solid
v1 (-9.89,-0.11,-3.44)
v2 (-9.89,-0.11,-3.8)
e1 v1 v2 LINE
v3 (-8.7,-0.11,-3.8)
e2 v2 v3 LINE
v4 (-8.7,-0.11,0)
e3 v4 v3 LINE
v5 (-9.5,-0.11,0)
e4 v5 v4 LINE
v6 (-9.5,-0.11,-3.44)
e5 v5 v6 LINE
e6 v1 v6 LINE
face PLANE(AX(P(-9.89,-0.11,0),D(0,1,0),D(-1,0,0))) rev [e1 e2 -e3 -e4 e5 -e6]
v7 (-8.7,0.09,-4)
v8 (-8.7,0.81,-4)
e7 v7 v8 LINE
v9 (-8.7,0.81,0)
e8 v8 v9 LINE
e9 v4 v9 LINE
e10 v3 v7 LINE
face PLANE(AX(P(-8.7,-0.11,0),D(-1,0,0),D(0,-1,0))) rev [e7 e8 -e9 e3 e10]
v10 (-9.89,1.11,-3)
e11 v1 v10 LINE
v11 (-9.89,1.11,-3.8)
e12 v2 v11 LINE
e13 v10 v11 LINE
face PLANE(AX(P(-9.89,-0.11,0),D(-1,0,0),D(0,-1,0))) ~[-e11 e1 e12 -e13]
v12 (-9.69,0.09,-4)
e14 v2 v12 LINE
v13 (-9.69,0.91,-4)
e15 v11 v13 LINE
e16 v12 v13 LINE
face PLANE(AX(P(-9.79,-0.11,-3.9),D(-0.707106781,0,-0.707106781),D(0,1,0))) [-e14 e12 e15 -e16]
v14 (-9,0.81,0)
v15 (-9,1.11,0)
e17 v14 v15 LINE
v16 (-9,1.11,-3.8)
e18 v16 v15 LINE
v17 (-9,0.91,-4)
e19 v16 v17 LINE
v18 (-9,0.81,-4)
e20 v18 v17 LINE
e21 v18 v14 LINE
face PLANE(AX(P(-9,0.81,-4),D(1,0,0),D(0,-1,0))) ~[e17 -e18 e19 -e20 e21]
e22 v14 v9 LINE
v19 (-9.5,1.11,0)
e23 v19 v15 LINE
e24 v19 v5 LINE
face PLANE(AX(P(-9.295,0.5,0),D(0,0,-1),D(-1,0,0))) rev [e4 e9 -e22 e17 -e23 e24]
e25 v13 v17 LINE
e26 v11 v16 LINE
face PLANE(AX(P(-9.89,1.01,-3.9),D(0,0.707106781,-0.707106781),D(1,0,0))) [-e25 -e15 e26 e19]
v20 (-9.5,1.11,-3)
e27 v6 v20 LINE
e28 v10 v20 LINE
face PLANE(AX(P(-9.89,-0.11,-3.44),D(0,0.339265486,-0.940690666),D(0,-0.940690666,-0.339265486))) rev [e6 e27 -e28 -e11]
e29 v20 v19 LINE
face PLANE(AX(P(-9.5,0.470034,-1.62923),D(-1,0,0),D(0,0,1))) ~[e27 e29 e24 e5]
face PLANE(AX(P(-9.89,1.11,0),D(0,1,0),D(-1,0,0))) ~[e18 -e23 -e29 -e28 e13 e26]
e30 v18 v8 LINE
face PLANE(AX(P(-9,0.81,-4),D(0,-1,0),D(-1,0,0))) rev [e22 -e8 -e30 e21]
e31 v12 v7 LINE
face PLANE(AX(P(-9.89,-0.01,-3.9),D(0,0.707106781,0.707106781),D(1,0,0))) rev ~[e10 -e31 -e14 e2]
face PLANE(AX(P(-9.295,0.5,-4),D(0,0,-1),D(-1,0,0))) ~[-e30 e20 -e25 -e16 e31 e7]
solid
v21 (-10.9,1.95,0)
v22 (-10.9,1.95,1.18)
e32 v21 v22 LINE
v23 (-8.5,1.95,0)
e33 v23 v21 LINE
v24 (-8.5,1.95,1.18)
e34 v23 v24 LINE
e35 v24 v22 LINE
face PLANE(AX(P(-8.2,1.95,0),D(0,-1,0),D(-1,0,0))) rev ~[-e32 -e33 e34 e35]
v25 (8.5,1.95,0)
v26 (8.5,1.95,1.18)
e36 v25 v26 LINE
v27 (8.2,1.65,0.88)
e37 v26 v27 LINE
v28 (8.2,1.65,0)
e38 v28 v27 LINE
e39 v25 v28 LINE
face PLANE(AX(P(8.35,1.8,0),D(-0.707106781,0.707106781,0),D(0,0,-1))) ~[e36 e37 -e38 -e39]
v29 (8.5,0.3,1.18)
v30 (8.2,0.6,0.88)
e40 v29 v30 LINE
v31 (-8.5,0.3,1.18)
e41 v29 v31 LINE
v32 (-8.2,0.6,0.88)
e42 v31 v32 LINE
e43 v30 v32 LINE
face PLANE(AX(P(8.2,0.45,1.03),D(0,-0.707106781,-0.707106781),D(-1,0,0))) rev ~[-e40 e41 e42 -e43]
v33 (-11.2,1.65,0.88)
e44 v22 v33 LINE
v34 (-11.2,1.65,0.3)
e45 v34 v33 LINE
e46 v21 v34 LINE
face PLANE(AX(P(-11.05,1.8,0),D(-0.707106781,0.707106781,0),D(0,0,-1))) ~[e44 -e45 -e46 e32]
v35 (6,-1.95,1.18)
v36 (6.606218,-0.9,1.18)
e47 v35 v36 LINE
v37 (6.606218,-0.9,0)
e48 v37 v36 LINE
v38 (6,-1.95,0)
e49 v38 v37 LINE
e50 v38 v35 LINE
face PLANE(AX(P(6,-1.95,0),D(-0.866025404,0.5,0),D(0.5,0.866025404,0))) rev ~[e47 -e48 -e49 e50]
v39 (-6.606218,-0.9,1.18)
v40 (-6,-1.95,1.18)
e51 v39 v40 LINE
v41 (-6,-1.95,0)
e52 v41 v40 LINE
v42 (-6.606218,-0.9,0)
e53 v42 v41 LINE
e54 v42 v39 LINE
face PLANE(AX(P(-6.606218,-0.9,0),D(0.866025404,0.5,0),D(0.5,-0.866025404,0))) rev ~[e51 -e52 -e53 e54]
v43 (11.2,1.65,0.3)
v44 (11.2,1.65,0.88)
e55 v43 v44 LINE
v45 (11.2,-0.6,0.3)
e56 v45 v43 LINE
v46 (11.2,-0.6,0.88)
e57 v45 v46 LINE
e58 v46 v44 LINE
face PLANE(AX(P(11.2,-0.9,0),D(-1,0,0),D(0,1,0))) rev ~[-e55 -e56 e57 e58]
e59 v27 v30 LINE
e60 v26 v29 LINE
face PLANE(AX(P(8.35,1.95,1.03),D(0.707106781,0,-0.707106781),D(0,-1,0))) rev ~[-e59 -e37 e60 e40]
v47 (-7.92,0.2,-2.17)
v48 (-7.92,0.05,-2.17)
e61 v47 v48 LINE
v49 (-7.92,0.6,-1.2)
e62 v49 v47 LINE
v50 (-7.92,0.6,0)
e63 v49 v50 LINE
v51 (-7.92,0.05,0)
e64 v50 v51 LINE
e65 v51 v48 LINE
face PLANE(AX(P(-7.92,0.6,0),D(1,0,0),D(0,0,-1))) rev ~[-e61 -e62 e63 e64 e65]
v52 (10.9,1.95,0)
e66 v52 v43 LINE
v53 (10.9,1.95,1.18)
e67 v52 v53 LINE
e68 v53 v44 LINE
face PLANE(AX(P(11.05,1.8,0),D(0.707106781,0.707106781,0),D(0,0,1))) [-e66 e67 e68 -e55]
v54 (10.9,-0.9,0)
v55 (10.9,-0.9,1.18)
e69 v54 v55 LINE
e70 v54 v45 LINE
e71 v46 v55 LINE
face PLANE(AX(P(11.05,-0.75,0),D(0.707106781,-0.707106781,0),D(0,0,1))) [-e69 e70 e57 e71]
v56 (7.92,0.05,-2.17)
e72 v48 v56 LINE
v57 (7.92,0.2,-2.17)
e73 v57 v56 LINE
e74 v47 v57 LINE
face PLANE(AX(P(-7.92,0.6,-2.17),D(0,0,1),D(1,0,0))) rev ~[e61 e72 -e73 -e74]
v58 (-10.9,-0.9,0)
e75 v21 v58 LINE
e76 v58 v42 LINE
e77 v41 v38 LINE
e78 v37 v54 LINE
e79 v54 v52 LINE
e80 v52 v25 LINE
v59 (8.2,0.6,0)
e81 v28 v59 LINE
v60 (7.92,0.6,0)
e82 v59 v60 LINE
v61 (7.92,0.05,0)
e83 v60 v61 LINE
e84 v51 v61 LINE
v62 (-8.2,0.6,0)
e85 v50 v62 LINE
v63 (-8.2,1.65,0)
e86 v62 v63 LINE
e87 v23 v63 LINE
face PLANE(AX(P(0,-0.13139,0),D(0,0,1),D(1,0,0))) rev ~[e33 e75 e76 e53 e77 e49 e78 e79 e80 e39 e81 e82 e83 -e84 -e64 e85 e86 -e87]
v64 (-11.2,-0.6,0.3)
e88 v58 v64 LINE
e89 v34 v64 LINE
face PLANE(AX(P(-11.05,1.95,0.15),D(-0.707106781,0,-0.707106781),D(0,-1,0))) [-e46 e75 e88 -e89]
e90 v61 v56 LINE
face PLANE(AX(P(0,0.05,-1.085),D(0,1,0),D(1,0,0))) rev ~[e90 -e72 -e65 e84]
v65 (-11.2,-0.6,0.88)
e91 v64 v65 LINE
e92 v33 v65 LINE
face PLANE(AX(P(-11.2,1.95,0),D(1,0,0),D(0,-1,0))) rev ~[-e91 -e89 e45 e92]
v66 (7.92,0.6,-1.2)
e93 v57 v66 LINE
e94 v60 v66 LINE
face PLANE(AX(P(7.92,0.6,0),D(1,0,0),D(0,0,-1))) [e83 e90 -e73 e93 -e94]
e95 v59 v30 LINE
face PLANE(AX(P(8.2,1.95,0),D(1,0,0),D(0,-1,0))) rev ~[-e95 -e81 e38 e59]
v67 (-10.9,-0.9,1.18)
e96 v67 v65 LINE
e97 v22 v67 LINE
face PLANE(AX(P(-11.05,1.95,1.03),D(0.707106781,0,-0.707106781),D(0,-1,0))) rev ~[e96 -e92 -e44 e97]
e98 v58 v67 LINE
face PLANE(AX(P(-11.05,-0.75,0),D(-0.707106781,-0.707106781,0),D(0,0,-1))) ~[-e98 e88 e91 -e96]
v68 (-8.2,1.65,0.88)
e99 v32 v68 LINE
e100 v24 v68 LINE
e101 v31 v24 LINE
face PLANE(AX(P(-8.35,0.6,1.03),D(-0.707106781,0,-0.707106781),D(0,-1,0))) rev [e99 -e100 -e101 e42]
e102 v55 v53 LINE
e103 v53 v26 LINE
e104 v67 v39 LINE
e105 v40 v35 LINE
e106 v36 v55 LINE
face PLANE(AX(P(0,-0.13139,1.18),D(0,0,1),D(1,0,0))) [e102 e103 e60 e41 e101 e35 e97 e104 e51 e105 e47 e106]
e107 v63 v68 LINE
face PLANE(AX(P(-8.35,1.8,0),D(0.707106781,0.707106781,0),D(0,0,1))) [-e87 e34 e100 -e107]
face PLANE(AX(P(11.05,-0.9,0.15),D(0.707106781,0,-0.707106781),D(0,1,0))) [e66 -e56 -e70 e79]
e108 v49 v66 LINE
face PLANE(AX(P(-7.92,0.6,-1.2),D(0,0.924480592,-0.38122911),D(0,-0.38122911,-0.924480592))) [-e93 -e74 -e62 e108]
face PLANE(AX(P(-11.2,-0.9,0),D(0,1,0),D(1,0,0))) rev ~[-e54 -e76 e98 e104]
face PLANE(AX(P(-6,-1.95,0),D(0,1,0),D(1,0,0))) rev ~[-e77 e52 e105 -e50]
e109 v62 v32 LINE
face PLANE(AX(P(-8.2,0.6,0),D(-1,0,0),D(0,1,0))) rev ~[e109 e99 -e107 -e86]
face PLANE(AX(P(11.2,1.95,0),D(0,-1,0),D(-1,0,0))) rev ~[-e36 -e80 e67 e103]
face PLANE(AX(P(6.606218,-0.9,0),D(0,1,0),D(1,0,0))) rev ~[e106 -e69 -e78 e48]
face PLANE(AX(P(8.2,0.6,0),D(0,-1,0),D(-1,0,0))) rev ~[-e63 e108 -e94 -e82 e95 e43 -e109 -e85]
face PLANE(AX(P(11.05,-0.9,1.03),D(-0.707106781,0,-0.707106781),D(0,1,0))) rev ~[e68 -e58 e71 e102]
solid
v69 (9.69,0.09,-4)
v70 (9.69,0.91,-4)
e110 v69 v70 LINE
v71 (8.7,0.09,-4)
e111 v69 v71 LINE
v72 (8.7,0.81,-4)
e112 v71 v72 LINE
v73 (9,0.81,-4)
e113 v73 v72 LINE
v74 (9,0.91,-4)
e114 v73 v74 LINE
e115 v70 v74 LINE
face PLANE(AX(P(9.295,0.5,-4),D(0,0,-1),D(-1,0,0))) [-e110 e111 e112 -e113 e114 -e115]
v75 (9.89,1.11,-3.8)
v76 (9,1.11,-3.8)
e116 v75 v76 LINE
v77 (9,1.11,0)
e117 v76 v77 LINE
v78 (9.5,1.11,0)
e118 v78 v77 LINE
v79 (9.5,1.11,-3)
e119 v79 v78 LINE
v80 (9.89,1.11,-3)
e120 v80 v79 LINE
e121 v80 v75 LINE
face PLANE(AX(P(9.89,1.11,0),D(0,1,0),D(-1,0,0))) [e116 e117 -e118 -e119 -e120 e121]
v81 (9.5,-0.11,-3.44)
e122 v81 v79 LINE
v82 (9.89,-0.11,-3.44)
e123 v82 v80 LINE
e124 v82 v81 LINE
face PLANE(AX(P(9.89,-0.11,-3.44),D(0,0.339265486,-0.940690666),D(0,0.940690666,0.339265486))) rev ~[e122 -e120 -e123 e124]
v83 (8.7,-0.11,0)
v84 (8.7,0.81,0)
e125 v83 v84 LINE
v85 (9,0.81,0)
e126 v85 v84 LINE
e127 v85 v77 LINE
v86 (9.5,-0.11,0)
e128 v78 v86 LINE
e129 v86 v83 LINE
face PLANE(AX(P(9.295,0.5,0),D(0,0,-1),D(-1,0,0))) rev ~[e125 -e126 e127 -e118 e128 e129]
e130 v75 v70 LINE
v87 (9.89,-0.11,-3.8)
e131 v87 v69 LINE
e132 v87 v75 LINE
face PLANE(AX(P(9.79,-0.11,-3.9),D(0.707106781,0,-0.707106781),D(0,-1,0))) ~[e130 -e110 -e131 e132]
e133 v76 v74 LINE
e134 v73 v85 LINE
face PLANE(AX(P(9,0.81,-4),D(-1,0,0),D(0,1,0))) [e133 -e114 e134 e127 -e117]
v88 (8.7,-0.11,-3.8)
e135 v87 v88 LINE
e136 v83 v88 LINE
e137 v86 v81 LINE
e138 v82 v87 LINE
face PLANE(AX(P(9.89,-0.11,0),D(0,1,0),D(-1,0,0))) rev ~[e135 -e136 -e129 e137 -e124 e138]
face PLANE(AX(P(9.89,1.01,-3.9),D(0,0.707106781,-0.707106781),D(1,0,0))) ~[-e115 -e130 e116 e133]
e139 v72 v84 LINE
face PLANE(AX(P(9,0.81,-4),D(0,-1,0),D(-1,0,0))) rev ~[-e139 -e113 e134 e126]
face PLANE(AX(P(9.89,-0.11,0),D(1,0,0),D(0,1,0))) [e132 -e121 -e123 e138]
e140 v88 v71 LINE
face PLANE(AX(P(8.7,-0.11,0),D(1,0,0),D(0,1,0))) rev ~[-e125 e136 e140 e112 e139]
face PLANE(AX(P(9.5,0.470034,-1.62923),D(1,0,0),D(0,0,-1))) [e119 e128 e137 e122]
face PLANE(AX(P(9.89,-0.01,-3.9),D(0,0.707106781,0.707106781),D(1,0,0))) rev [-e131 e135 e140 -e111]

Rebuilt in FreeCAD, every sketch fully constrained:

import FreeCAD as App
import Part
import Sketcher
Q = App.Units.Quantity


def edges_at(feature, points):
    """Names of the edges that pass closest to the given points."""
    edges = feature.Shape.Edges
    near = lambda p: min(range(len(edges)), key=lambda i: edges[i].distToShape(Part.Vertex(*p))[0])
    return sorted({f"Edge{near(p) + 1}" for p in points})

doc = App.newDocument("Part")
params = doc.addObject("Spreadsheet::Sheet", "Params")
for row, (alias, value) in enumerate([
    ("sketch1_width", "3 mm"),
    ("sketch1_width2", "12 mm"),
    ("sketch1_width3", "16.4 mm"),
    ("sketch1_height", "1.35 mm"),
    ("sketch1_height2", "2.85 mm"),
    ("pad1_length", "1.18 mm"),
    ("sketch2_width", "15.84 mm"),
    ("sketch2_height", "2.17 mm"),
    ("pad2_length", "0.55 mm"),
    ("sketch3_width", "0.4 mm"),
    ("sketch3_height", "0.97 mm"),
    ("chamfer_size", "0.3 mm"),
    ("chamfer2_size", "0.3 mm"),
    ("sketch4_width", "1.19 mm"),
    ("sketch4_height", "1.22 mm"),
    ("pad3_length", "4 mm"),
    ("sketch5_width", "0.3 mm"),
    ("pocket2_length", "4 mm"),
    ("chamfer3_size", "0.2 mm"),
    ("sketch6_height", "3 mm"),
    ("sketch6_width", "1.22 mm"),
    ("sketch6_height2", "3.44 mm"),
    ("pocket3_length", "0.39 mm"),
], start=1):
    params.set(f"A{row}", alias)
    params.set(f"B{row}", "=" + value)
    params.setAlias(f"B{row}", alias)

body = doc.addObject("PartDesign::Body", "Body")

sketch1 = doc.addObject("Sketcher::SketchObject", "Sketch")
body.addObject(sketch1)
sketch1.AttachmentSupport = (doc.XY_Plane, [""])
sketch1.MapMode = "FlatFace"
sketch1.addGeometry([
    Part.LineSegment(App.Vector(-8.2, 0.6, 0), App.Vector(-8.2, 1.9, 0)),
    Part.LineSegment(App.Vector(-8.2, 1.9, 0), App.Vector(-11.2, 1.9, 0)),
    Part.LineSegment(App.Vector(-11.2, 1.9, 0), App.Vector(-11.2, -0.9, 0)),
    Part.LineSegment(App.Vector(-11.2, -0.9, 0), App.Vector(-6.6, -0.9, 0)),
    Part.LineSegment(App.Vector(-6.6, -0.9, 0), App.Vector(-6, -1.9, 0)),
    Part.LineSegment(App.Vector(-6, -1.9, 0), App.Vector(6, -1.9, 0)),
    Part.LineSegment(App.Vector(6, -1.9, 0), App.Vector(6.6, -0.9, 0)),
    Part.LineSegment(App.Vector(6.6, -0.9, 0), App.Vector(11.2, -0.9, 0)),
    Part.LineSegment(App.Vector(11.2, -0.9, 0), App.Vector(11.2, 1.9, 0)),
    Part.LineSegment(App.Vector(11.2, 1.9, 0), App.Vector(8.2, 1.9, 0)),
    Part.LineSegment(App.Vector(8.2, 1.9, 0), App.Vector(8.2, 0.6, 0)),
    Part.LineSegment(App.Vector(8.2, 0.6, 0), App.Vector(-8.2, 0.6, 0)),
], False)
sketch1.addConstraint([
    Sketcher.Constraint("Coincident", 0, 2, 1, 1),
    Sketcher.Constraint("Coincident", 1, 2, 2, 1),
    Sketcher.Constraint("Coincident", 2, 2, 3, 1),
    Sketcher.Constraint("Coincident", 3, 2, 4, 1),
    Sketcher.Constraint("Coincident", 4, 2, 5, 1),
    Sketcher.Constraint("Coincident", 5, 2, 6, 1),
    Sketcher.Constraint("Coincident", 6, 2, 7, 1),
    Sketcher.Constraint("Coincident", 7, 2, 8, 1),
    Sketcher.Constraint("Coincident", 8, 2, 9, 1),
    Sketcher.Constraint("Coincident", 9, 2, 10, 1),
    Sketcher.Constraint("Coincident", 10, 2, 11, 1),
    Sketcher.Constraint("Coincident", 11, 2, 0, 1),
    Sketcher.Constraint("Vertical", 0),
    Sketcher.Constraint("Horizontal", 1),
    Sketcher.Constraint("Vertical", 2),
    Sketcher.Constraint("Horizontal", 3),
    Sketcher.Constraint("Horizontal", 5),
    Sketcher.Constraint("Horizontal", 7),
    Sketcher.Constraint("Vertical", 8),
    Sketcher.Constraint("Horizontal", 9),
    Sketcher.Constraint("Vertical", 10),
    Sketcher.Constraint("Horizontal", 11),
    Sketcher.Constraint("Symmetric", 3, 2, 6, 2, -2),
    Sketcher.Constraint("Symmetric", 1, 2, 8, 2, -2),
    Sketcher.Constraint("Equal", 1, 9),
    Sketcher.Constraint("Equal", 4, 6),
    Sketcher.Constraint("DistanceX", 1, 2, 1, 1, Q("3 mm")),
    Sketcher.Constraint("DistanceX", 5, 1, 5, 2, Q("12 mm")),
    Sketcher.Constraint("Angle", 4, Q("-60 deg")),
    Sketcher.Constraint("DistanceX", 11, 2, 11, 1, Q("16.4 mm")),
    Sketcher.Constraint("DistanceY", 0, 1, 0, 2, Q("1.35 mm")),
    Sketcher.Constraint("DistanceY", 2, 2, 2, 1, Q("2.85 mm")),
    Sketcher.Constraint("DistanceY", 2, 2, -1, 1, Q("0.9 mm")),
    Sketcher.Constraint("DistanceY", 4, 2, 0, 2, Q("3.9 mm")),
])
sketch1.setExpression("Constraints[26]", "Params.sketch1_width")
sketch1.setExpression("Constraints[27]", "Params.sketch1_width2")
sketch1.setExpression("Constraints[29]", "Params.sketch1_width3")
sketch1.setExpression("Constraints[30]", "Params.sketch1_height")
sketch1.setExpression("Constraints[31]", "Params.sketch1_height2")
pad1 = doc.addObject("PartDesign::Pad", "Pad")
body.addObject(pad1)
pad1.Profile = sketch1
pad1.setExpression("Length", "Params.pad1_length")

sketch2 = doc.addObject("Sketcher::SketchObject", "Sketch001")
body.addObject(sketch2)
sketch2.AttachmentSupport = (doc.XZ_Plane, [""])
sketch2.MapMode = "FlatFace"
sketch2.AttachmentOffset = App.Placement(App.Vector(0, 0, -0.6), App.Rotation())
sketch2.addGeometry([
    Part.LineSegment(App.Vector(-7.9, -2.2, 0), App.Vector(-7.9, 0, 0)),
    Part.LineSegment(App.Vector(-7.9, 0, 0), App.Vector(7.9, 0, 0)),
    Part.LineSegment(App.Vector(7.9, 0, 0), App.Vector(7.9, -2.2, 0)),
    Part.LineSegment(App.Vector(7.9, -2.2, 0), App.Vector(-7.9, -2.2, 0)),
], False)
sketch2.addConstraint([
    Sketcher.Constraint("Coincident", 0, 2, 1, 1),
    Sketcher.Constraint("Coincident", 1, 2, 2, 1),
    Sketcher.Constraint("Coincident", 2, 2, 3, 1),
    Sketcher.Constraint("Coincident", 3, 2, 0, 1),
    Sketcher.Constraint("Vertical", 0),
    Sketcher.Constraint("Horizontal", 1),
    Sketcher.Constraint("Vertical", 2),
    Sketcher.Constraint("Horizontal", 3),
    Sketcher.Constraint("Symmetric", 0, 2, 1, 2, -1, 1),
    Sketcher.Constraint("DistanceX", 1, 1, 1, 2, Q("15.84 mm")),
    Sketcher.Constraint("DistanceY", 0, 1, 0, 2, Q("2.17 mm")),
])
sketch2.setExpression("Constraints[9]", "Params.sketch2_width")
sketch2.setExpression("Constraints[10]", "Params.sketch2_height")
pad2 = doc.addObject("PartDesign::Pad", "Pad001")
body.addObject(pad2)
pad2.Profile = sketch2
pad2.setExpression("Length", "Params.pad2_length")

sketch3 = doc.addObject("Sketcher::SketchObject", "Sketch002")
body.addObject(sketch3)
sketch3.AttachmentSupport = (doc.YZ_Plane, [""])
sketch3.MapMode = "FlatFace"
sketch3.AttachmentOffset = App.Placement(App.Vector(0, 0, -7.92), App.Rotation())
sketch3.addGeometry([
    Part.LineSegment(App.Vector(0.2, -2.17, 0), App.Vector(0.6, -1.2, 0)),
    Part.LineSegment(App.Vector(0.6, -1.2, 0), App.Vector(0.6, -2.17, 0)),
    Part.LineSegment(App.Vector(0.6, -2.17, 0), App.Vector(0.2, -2.17, 0)),
], False)
sketch3.addConstraint([
    Sketcher.Constraint("Coincident", 0, 2, 1, 1),
    Sketcher.Constraint("Coincident", 1, 2, 2, 1),
    Sketcher.Constraint("Coincident", 2, 2, 0, 1),
    Sketcher.Constraint("Vertical", 1),
    Sketcher.Constraint("Horizontal", 2),
    Sketcher.Constraint("DistanceX", 2, 2, 2, 1, Q("0.4 mm")),
    Sketcher.Constraint("DistanceY", 1, 2, 1, 1, Q("0.97 mm")),
    Sketcher.Constraint("DistanceX", -1, 1, 0, 2, Q("0.6 mm")),
    Sketcher.Constraint("DistanceY", 0, 2, -1, 1, Q("1.2 mm")),
])
sketch3.setExpression("Constraints[5]", "Params.sketch3_width")
sketch3.setExpression("Constraints[6]", "Params.sketch3_height")
pocket1 = doc.addObject("PartDesign::Pocket", "Pocket")
body.addObject(pocket1)
pocket1.Profile = sketch3
pocket1.Type = "ThroughAll"
pocket1.Midplane = True
doc.recompute()

chamfer = doc.addObject("PartDesign::Chamfer", "Chamfer")
body.addObject(chamfer)
chamfer.Base = (pocket1, edges_at(pocket1, [
    (11.2, 0.525, 0),
    (-11.2, 0.525, 1.18),
    (-11.2, 0.525, 0),
    (11.2, 1.95, 0.59),
    (11.2, -0.9, 0.59),
    (-11.2, -0.9, 0.59),
    (-11.2, 1.95, 0.59),
    (11.2, 0.525, 1.18),
]))
chamfer.setExpression("Size", "Params.chamfer_size")
doc.recompute()

chamfer2 = doc.addObject("PartDesign::Chamfer", "Chamfer001")
body.addObject(chamfer2)
chamfer2.Base = (chamfer, edges_at(chamfer, [
    (8.2, 1.95, 0.59),
    (-8.2, 1.95, 0.59),
    (8.2, 1.275, 1.18),
    (0, 0.6, 1.18),
    (-8.2, 1.275, 1.18),
]))
chamfer2.setExpression("Size", "Params.chamfer2_size")
body2 = doc.addObject("PartDesign::Body", "Body001")

sketch4 = doc.addObject("Sketcher::SketchObject", "Sketch003")
body2.addObject(sketch4)
sketch4.AttachmentSupport = (doc.getObject("XY_Plane001"), [""])
sketch4.MapMode = "FlatFace"
sketch4.addGeometry([
    Part.LineSegment(App.Vector(9.9, 1.1, 0), App.Vector(9.9, -0.1, 0)),
    Part.LineSegment(App.Vector(9.9, -0.1, 0), App.Vector(8.7, -0.1, 0)),
    Part.LineSegment(App.Vector(8.7, -0.1, 0), App.Vector(8.7, 1.1, 0)),
    Part.LineSegment(App.Vector(8.7, 1.1, 0), App.Vector(9.9, 1.1, 0)),
], False)
sketch4.addConstraint([
    Sketcher.Constraint("Coincident", 0, 2, 1, 1),
    Sketcher.Constraint("Coincident", 1, 2, 2, 1),
    Sketcher.Constraint("Coincident", 2, 2, 3, 1),
    Sketcher.Constraint("Coincident", 3, 2, 0, 1),
    Sketcher.Constraint("Vertical", 0),
    Sketcher.Constraint("Horizontal", 1),
    Sketcher.Constraint("Vertical", 2),
    Sketcher.Constraint("Horizontal", 3),
    Sketcher.Constraint("DistanceX", 1, 2, 1, 1, Q("1.19 mm")),
    Sketcher.Constraint("DistanceY", 0, 2, 0, 1, Q("1.22 mm")),
    Sketcher.Constraint("DistanceX", -1, 1, 1, 2, Q("8.7 mm")),
    Sketcher.Constraint("DistanceY", 0, 2, -1, 1, Q("0.11 mm")),
])
sketch4.setExpression("Constraints[8]", "Params.sketch4_width")
sketch4.setExpression("Constraints[9]", "Params.sketch4_height")
pad3 = doc.addObject("PartDesign::Pad", "Pad002")
body2.addObject(pad3)
pad3.Profile = sketch4
pad3.setExpression("Length", "Params.pad3_length")
pad3.Reversed = True

sketch5 = doc.addObject("Sketcher::SketchObject", "Sketch004")
body2.addObject(sketch5)
sketch5.AttachmentSupport = (doc.getObject("XY_Plane001"), [""])
sketch5.MapMode = "FlatFace"
sketch5.AttachmentOffset = App.Placement(App.Vector(0, 0, -4), App.Rotation())
sketch5.addGeometry([
    Part.LineSegment(App.Vector(9, 1.11, 0), App.Vector(9, 0.81, 0)),
    Part.LineSegment(App.Vector(9, 0.81, 0), App.Vector(8.7, 0.81, 0)),
    Part.LineSegment(App.Vector(8.7, 0.81, 0), App.Vector(8.7, 1.11, 0)),
    Part.LineSegment(App.Vector(8.7, 1.11, 0), App.Vector(9, 1.11, 0)),
], False)
sketch5.addConstraint([
    Sketcher.Constraint("Coincident", 0, 2, 1, 1),
    Sketcher.Constraint("Coincident", 1, 2, 2, 1),
    Sketcher.Constraint("Coincident", 2, 2, 3, 1),
    Sketcher.Constraint("Coincident", 3, 2, 0, 1),
    Sketcher.Constraint("Vertical", 0),
    Sketcher.Constraint("Horizontal", 1),
    Sketcher.Constraint("Vertical", 2),
    Sketcher.Constraint("Horizontal", 3),
    Sketcher.Constraint("Equal", 3, 0),
    Sketcher.Constraint("DistanceX", 1, 2, 1, 1, Q("0.3 mm")),
    Sketcher.Constraint("DistanceX", -1, 1, 0, 2, Q("9 mm")),
    Sketcher.Constraint("DistanceY", -1, 1, 0, 2, Q("0.81 mm")),
])
sketch5.setExpression("Constraints[9]", "Params.sketch5_width")
pocket2 = doc.addObject("PartDesign::Pocket", "Pocket001")
body2.addObject(pocket2)
pocket2.Profile = sketch5
pocket2.setExpression("Length", "Params.pocket2_length")
pocket2.Reversed = True
doc.recompute()

chamfer3 = doc.addObject("PartDesign::Chamfer", "Chamfer002")
body2.addObject(chamfer3)
chamfer3.Base = (pocket2, edges_at(pocket2, [(9.89, 0.5, -4), (9.295, -0.11, -4), (9.445, 1.11, -4)]))
chamfer3.setExpression("Size", "Params.chamfer3_size")

sketch6 = doc.addObject("Sketcher::SketchObject", "Sketch005")
body2.addObject(sketch6)
sketch6.AttachmentSupport = (doc.getObject("YZ_Plane001"), [""])
sketch6.MapMode = "FlatFace"
sketch6.AttachmentOffset = App.Placement(App.Vector(0, 0, 9.89), App.Rotation())
sketch6.addGeometry([
    Part.LineSegment(App.Vector(-0.1, -3.4, 0), App.Vector(1.1, -3, 0)),
    Part.LineSegment(App.Vector(1.1, -3, 0), App.Vector(1.1, 0, 0)),
    Part.LineSegment(App.Vector(1.1, 0, 0), App.Vector(-0.1, 0, 0)),
    Part.LineSegment(App.Vector(-0.1, 0, 0), App.Vector(-0.1, -3.4, 0)),
], False)
sketch6.addConstraint([
    Sketcher.Constraint("Coincident", 0, 2, 1, 1),
    Sketcher.Constraint("Coincident", 1, 2, 2, 1),
    Sketcher.Constraint("Coincident", 2, 2, 3, 1),
    Sketcher.Constraint("Coincident", 3, 2, 0, 1),
    Sketcher.Constraint("Vertical", 1),
    Sketcher.Constraint("Horizontal", 2),
    Sketcher.Constraint("Vertical", 3),
    Sketcher.Constraint("PointOnObject", 1, 2, -1),
    Sketcher.Constraint("DistanceY", 1, 1, 1, 2, Q("3 mm")),
    Sketcher.Constraint("DistanceX", 2, 2, 2, 1, Q("1.22 mm")),
    Sketcher.Constraint("DistanceY", 3, 2, 3, 1, Q("3.44 mm")),
    Sketcher.Constraint("DistanceX", -1, 1, 0, 2, Q("1.11 mm")),
])
sketch6.setExpression("Constraints[8]", "Params.sketch6_height")
sketch6.setExpression("Constraints[9]", "Params.sketch6_width")
sketch6.setExpression("Constraints[10]", "Params.sketch6_height2")
pocket3 = doc.addObject("PartDesign::Pocket", "Pocket002")
body2.addObject(pocket3)
pocket3.Profile = sketch6
pocket3.setExpression("Length", "Params.pocket3_length")
body3 = doc.addObject("PartDesign::Body", "Body002")
doc.recompute()

mirroring = doc.addObject("Part::Mirroring", "Mirroring")
mirroring.Source = body2
mirroring.Base = App.Vector(0, 0, 0)
mirroring.Normal = App.Vector(1, 0, 0)
body3.BaseFeature = mirroring
doc.recompute()
mirroring.Visibility = False

doc.recompute()
